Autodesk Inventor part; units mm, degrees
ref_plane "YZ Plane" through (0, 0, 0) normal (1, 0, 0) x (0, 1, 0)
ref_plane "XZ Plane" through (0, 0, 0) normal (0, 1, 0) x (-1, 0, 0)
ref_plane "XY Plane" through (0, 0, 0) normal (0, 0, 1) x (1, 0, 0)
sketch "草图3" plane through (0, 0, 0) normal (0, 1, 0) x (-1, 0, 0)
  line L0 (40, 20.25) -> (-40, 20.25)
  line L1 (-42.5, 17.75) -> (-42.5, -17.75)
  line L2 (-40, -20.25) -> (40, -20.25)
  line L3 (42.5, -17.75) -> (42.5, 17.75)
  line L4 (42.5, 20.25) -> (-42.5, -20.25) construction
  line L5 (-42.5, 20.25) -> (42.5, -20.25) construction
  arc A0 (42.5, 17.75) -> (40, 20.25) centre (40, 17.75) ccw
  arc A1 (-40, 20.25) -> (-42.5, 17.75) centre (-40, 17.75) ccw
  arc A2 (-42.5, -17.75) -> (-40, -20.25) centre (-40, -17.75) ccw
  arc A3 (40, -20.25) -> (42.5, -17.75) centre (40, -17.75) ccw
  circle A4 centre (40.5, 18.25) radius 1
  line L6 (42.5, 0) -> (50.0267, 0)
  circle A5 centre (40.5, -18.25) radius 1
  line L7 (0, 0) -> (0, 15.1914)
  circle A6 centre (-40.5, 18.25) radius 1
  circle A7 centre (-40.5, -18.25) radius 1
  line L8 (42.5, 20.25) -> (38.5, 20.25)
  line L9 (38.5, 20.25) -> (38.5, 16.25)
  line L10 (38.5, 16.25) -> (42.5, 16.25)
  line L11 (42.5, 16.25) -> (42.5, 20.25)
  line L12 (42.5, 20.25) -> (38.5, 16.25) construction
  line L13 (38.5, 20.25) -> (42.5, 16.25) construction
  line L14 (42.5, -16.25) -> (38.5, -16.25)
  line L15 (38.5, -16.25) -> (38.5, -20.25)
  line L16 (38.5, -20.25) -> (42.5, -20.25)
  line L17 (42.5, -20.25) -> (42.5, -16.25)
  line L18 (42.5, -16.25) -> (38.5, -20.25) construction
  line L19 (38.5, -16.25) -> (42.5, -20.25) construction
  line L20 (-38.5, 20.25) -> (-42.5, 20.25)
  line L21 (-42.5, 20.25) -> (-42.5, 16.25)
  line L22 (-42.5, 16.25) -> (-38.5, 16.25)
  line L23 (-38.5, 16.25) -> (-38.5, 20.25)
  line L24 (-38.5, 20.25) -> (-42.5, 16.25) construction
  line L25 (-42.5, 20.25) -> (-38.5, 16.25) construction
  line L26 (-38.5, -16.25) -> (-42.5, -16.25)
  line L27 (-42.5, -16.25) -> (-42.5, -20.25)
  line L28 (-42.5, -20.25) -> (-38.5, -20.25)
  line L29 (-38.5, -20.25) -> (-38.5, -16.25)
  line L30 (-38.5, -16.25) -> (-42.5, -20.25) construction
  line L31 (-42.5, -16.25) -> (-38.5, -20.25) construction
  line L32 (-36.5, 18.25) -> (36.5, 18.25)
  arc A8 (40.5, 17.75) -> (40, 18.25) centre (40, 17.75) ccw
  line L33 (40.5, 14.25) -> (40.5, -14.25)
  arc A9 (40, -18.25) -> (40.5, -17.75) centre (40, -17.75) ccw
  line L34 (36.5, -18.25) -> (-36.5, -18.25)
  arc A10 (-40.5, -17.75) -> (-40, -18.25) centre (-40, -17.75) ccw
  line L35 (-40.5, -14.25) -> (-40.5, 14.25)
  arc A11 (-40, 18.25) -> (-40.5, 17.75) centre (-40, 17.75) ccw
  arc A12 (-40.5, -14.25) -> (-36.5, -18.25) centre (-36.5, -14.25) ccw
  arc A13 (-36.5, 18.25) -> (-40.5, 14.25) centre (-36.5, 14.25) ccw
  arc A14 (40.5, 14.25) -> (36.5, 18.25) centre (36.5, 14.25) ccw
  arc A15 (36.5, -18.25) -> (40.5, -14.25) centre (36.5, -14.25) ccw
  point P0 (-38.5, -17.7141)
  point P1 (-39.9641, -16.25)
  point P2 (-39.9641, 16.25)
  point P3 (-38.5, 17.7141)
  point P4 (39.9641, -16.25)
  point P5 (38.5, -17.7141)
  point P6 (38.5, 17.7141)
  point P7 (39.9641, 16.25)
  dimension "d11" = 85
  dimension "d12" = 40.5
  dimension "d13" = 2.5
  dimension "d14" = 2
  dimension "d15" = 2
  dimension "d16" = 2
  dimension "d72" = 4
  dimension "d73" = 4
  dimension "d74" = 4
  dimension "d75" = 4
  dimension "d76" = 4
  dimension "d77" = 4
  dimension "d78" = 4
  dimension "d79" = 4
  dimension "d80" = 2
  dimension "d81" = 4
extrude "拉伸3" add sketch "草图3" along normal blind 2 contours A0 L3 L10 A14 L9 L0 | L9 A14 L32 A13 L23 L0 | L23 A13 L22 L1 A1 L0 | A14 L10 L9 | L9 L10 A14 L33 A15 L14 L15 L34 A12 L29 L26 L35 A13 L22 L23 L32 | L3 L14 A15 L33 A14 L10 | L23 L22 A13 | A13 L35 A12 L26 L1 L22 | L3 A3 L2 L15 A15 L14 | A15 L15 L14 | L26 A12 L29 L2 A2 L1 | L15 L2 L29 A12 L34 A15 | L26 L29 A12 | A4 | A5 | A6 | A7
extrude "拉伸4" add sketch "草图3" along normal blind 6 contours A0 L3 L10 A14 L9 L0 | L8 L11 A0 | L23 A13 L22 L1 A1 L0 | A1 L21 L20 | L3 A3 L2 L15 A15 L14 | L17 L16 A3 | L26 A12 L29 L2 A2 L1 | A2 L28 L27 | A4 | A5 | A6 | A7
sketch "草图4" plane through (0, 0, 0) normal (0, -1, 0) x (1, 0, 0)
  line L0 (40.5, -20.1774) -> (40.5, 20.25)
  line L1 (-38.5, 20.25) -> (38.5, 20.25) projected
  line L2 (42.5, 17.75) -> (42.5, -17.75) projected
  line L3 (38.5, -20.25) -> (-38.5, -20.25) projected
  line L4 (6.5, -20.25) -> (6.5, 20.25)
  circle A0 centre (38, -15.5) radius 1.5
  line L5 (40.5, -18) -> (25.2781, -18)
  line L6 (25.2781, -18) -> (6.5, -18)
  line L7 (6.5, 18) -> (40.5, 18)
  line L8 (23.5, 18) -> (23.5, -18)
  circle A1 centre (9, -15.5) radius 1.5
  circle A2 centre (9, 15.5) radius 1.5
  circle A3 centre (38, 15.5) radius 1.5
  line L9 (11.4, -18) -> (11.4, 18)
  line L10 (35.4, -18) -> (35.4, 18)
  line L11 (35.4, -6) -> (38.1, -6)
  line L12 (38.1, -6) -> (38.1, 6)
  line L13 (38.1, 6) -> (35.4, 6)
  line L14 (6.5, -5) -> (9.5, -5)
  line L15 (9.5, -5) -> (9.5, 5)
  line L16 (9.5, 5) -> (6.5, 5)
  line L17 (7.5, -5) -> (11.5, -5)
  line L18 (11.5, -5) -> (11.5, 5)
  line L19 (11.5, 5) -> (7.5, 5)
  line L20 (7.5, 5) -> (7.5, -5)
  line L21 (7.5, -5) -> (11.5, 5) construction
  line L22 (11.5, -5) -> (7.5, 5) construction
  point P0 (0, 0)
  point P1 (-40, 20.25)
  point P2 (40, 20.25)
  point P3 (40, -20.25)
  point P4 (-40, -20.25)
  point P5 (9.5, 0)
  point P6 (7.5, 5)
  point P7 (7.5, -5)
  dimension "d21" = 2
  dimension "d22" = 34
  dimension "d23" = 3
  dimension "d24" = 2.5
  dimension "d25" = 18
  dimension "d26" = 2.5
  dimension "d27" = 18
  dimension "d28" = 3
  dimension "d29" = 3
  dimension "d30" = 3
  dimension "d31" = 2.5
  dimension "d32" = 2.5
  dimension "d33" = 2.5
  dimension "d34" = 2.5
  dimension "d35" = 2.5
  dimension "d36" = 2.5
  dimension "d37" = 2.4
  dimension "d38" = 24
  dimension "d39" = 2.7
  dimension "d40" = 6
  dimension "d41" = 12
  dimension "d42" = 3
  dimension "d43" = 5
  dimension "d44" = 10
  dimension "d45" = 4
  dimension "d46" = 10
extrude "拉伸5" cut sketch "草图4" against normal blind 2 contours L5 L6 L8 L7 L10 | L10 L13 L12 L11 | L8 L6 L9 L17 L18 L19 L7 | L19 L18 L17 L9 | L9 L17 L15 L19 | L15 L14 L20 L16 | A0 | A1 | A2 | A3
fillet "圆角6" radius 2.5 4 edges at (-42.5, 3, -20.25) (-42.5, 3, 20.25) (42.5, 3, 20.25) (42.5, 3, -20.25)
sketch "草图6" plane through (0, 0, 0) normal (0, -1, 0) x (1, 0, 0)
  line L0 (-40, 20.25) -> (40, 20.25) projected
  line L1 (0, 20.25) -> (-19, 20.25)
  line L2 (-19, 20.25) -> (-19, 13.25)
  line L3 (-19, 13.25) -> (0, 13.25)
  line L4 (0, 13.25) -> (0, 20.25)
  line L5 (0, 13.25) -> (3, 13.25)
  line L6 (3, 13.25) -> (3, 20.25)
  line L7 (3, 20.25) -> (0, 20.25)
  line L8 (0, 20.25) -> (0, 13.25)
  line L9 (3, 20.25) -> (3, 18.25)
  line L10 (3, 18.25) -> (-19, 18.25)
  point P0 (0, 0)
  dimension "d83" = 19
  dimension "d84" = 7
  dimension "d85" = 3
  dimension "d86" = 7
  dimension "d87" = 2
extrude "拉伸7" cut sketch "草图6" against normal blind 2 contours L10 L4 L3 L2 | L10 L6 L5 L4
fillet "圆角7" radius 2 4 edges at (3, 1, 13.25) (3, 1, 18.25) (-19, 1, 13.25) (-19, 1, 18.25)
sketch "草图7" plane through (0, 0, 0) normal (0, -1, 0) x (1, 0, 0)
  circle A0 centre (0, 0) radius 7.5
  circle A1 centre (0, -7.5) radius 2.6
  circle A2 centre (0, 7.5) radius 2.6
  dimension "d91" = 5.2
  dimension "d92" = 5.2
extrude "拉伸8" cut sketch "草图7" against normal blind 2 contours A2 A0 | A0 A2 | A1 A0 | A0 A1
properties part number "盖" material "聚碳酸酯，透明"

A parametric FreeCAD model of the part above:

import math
import FreeCAD as App
import Part
import Sketcher
Q = App.Units.Quantity


def edges_at(feature, points):
    """Names of the edges that pass closest to the given points."""
    edges = feature.Shape.Edges
    near = lambda p: min(range(len(edges)), key=lambda i: edges[i].distToShape(Part.Vertex(*p))[0])
    return sorted({f"Edge{near(p) + 1}" for p in points})


def add_polygon(sketch, points):
    """Adds a closed chain of lines whose ends are joined by coincident constraints."""
    first, n = sketch.GeometryCount, len(points)
    for a, b in zip(points, points[1:] + points[:1]):
        sketch.addGeometry(Part.LineSegment(App.Vector(*a, 0), App.Vector(*b, 0)), False)
    for i in range(n):
        sketch.addConstraint(Sketcher.Constraint("Coincident", first + i, 2, first + (i + 1) % n, 1))

doc = App.newDocument("Part")
body = doc.addObject("PartDesign::Body", "Body")

sketch1 = body.newObject("Sketcher::SketchObject", "Sketch")
sketch1.AttachmentSupport = (doc.getObject("XZ_Plane"), [""])
sketch1.MapMode = "FlatFace"
sketch1.addGeometry([
    Part.ArcOfCircle(Part.Circle(App.Vector(-40, 17.8, 0), App.Vector(0, 0, 1), 2.5), math.radians(90), math.radians(180)),
    Part.LineSegment(App.Vector(-40, 20.2, 0), App.Vector(40, 20.2, 0)),
    Part.ArcOfCircle(Part.Circle(App.Vector(40, 17.8, 0), App.Vector(0, 0, 1), 2.5), math.radians(0), math.radians(90)),
    Part.LineSegment(App.Vector(42.5, 17.8, 0), App.Vector(42.5, -17.8, 0)),
    Part.ArcOfCircle(Part.Circle(App.Vector(40, -17.8, 0), App.Vector(0, 0, 1), 2.5), math.radians(-90), math.radians(0)),
    Part.LineSegment(App.Vector(40, -20.2, 0), App.Vector(-40, -20.2, 0)),
    Part.ArcOfCircle(Part.Circle(App.Vector(-40, -17.8, 0), App.Vector(0, 0, 1), 2.5), math.radians(180), math.radians(270)),
    Part.LineSegment(App.Vector(-42.5, -17.8, 0), App.Vector(-42.5, 17.8, 0)),
], False)
sketch1.addConstraint([
    Sketcher.Constraint("Tangent", 0, 1, 1, 1),
    Sketcher.Constraint("Tangent", 1, 2, 2, 2),
    Sketcher.Constraint("Tangent", 2, 1, 3, 1),
    Sketcher.Constraint("Tangent", 3, 2, 4, 2),
    Sketcher.Constraint("Tangent", 4, 1, 5, 1),
    Sketcher.Constraint("Tangent", 5, 2, 6, 2),
    Sketcher.Constraint("Tangent", 6, 1, 7, 1),
    Sketcher.Constraint("Tangent", 7, 2, 0, 2),
    Sketcher.Constraint("Horizontal", 1),
    Sketcher.Constraint("Vertical", 3),
    Sketcher.Constraint("Horizontal", 5),
    Sketcher.Constraint("Vertical", 7),
    Sketcher.Constraint("Equal", 0, 2),
    Sketcher.Constraint("Equal", 2, 4),
    Sketcher.Constraint("Equal", 4, 6),
    Sketcher.Constraint("Symmetric", 0, 3, 4, 3, -1, 1),
    Sketcher.Constraint("Radius", 0, Q("2.5 mm")),
    Sketcher.Constraint("DistanceY", 4, 1, 1, 2, Q("40.5 mm")),
    Sketcher.Constraint("DistanceX", 1, 1, 1, 2, Q("80 mm")),
])
pad1 = body.newObject("PartDesign::Pad", "Pad")
pad1.Profile = sketch1
pad1.Length = 2
pad1.Reversed = True

sketch2 = body.newObject("Sketcher::SketchObject", "Sketch001")
sketch2.AttachmentSupport = (doc.getObject("XZ_Plane"), [""])
sketch2.MapMode = "FlatFace"
sketch2.addGeometry([
    Part.LineSegment(App.Vector(-42.5, 16.2, 0), App.Vector(-42.5, 20.2, 0)),
    Part.LineSegment(App.Vector(-42.5, 20.2, 0), App.Vector(-38.5, 20.2, 0)),
    Part.LineSegment(App.Vector(-38.5, 20.2, 0), App.Vector(-38.5, 17.7, 0)),
    Part.ArcOfCircle(Part.Circle(App.Vector(-36.5, 14.2, 0), App.Vector(0, 0, 1), 4), math.radians(120), math.radians(150)),
    Part.LineSegment(App.Vector(-40, 16.2, 0), App.Vector(-42.5, 16.2, 0)),
    Part.LineSegment(App.Vector(38.5, 17.7, 0), App.Vector(38.5, 20.2, 0)),
    Part.LineSegment(App.Vector(38.5, 20.2, 0), App.Vector(42.5, 20.2, 0)),
    Part.LineSegment(App.Vector(42.5, 20.2, 0), App.Vector(42.5, 16.2, 0)),
    Part.LineSegment(App.Vector(42.5, 16.2, 0), App.Vector(40, 16.2, 0)),
    Part.ArcOfCircle(Part.Circle(App.Vector(36.5, 14.2, 0), App.Vector(0, 0, 1), 4), math.radians(30), math.radians(60)),
    Part.LineSegment(App.Vector(-42.5, -16.2, 0), App.Vector(-40, -16.2, 0)),
    Part.ArcOfCircle(Part.Circle(App.Vector(-36.5, -14.2, 0), App.Vector(0, 0, 1), 4), math.radians(-150), math.radians(-120)),
    Part.LineSegment(App.Vector(-38.5, -17.7, 0), App.Vector(-38.5, -20.2, 0)),
    Part.LineSegment(App.Vector(-38.5, -20.2, 0), App.Vector(-42.5, -20.2, 0)),
    Part.LineSegment(App.Vector(-42.5, -20.2, 0), App.Vector(-42.5, -16.2, 0)),
    Part.LineSegment(App.Vector(40, -16.2, 0), App.Vector(42.5, -16.2, 0)),
    Part.LineSegment(App.Vector(42.5, -16.2, 0), App.Vector(42.5, -20.2, 0)),
    Part.LineSegment(App.Vector(42.5, -20.2, 0), App.Vector(38.5, -20.2, 0)),
    Part.LineSegment(App.Vector(38.5, -20.2, 0), App.Vector(38.5, -17.7, 0)),
    Part.ArcOfCircle(Part.Circle(App.Vector(36.5, -14.2, 0), App.Vector(0, 0, 1), 4), math.radians(-60), math.radians(-30)),
], False)
sketch2.addConstraint([
    Sketcher.Constraint("Coincident", 0, 2, 1, 1),
    Sketcher.Constraint("Coincident", 1, 2, 2, 1),
    Sketcher.Constraint("Coincident", 2, 2, 3, 1),
    Sketcher.Constraint("Coincident", 3, 2, 4, 1),
    Sketcher.Constraint("Coincident", 4, 2, 0, 1),
    Sketcher.Constraint("Coincident", 5, 2, 6, 1),
    Sketcher.Constraint("Coincident", 6, 2, 7, 1),
    Sketcher.Constraint("Coincident", 7, 2, 8, 1),
    Sketcher.Constraint("Coincident", 8, 2, 9, 1),
    Sketcher.Constraint("Coincident", 9, 2, 5, 1),
    Sketcher.Constraint("Coincident", 10, 2, 11, 1),
    Sketcher.Constraint("Coincident", 11, 2, 12, 1),
    Sketcher.Constraint("Coincident", 12, 2, 13, 1),
    Sketcher.Constraint("Coincident", 13, 2, 14, 1),
    Sketcher.Constraint("Coincident", 14, 2, 10, 1),
    Sketcher.Constraint("Coincident", 15, 2, 16, 1),
    Sketcher.Constraint("Coincident", 16, 2, 17, 1),
    Sketcher.Constraint("Coincident", 17, 2, 18, 1),
    Sketcher.Constraint("Coincident", 18, 2, 19, 1),
    Sketcher.Constraint("Coincident", 19, 2, 15, 1),
    Sketcher.Constraint("Vertical", 0),
    Sketcher.Constraint("Horizontal", 1),
    Sketcher.Constraint("Vertical", 2),
    Sketcher.Constraint("Horizontal", 4),
    Sketcher.Constraint("Vertical", 5),
    Sketcher.Constraint("Horizontal", 6),
    Sketcher.Constraint("Vertical", 7),
    Sketcher.Constraint("Horizontal", 8),
    Sketcher.Constraint("Horizontal", 10),
    Sketcher.Constraint("Vertical", 12),
    Sketcher.Constraint("Horizontal", 13),
    Sketcher.Constraint("Vertical", 14),
    Sketcher.Constraint("Horizontal", 15),
    Sketcher.Constraint("Vertical", 16),
    Sketcher.Constraint("Horizontal", 17),
    Sketcher.Constraint("Vertical", 18),
    Sketcher.Constraint("Equal", 3, 9),
    Sketcher.Constraint("Equal", 9, 11),
    Sketcher.Constraint("Equal", 11, 19),
    Sketcher.Constraint("Symmetric", 9, 3, 11, 3, -1, 1),
    Sketcher.Constraint("Symmetric", 3, 3, 19, 3, -1, 1),
    Sketcher.Constraint("Symmetric", 5, 2, 12, 2, -1, 1),
    Sketcher.Constraint("Symmetric", 7, 2, 14, 2, -1, 1),
    Sketcher.Constraint("Symmetric", 4, 2, 15, 2, -1, 1),
    Sketcher.Constraint("Symmetric", 1, 2, 17, 2, -1, 1),
    Sketcher.Constraint("Symmetric", 3, 3, 9, 3, -2),
    Sketcher.Constraint("Symmetric", 1, 2, 5, 2, -2),
    Sketcher.Constraint("Symmetric", 4, 2, 7, 2, -2),
    Sketcher.Constraint("Equal", 17, 0),
    Sketcher.Constraint("Equal", 15, 2),
    Sketcher.Constraint("Radius", 3, Q("4 mm")),
    Sketcher.Constraint("DistanceX", 1, 1, 1, 2, Q("4 mm")),
    Sketcher.Constraint("DistanceX", 1, 2, 3, 3, Q("2 mm")),
    Sketcher.Constraint("DistanceX", 3, 3, 9, 3, Q("73 mm")),
    Sketcher.Constraint("DistanceY", 11, 3, 3, 3, Q("28.5 mm")),
])
pad2 = body.newObject("PartDesign::Pad", "Pad001")
pad2.Profile = sketch2
pad2.Length = 6
pad2.Reversed = True

sketch3 = body.newObject("Sketcher::SketchObject", "Sketch002")
sketch3.AttachmentSupport = (doc.getObject("XZ_Plane"), [""])
sketch3.MapMode = "FlatFace"
add_polygon(sketch3, [(35.4, -18), (35.4, -6), (38.1, -6), (38.1, 6), (35.4, 6), (35.4, 18), (11.4, 18), (11.4, 5), (7.5, 5), (7.5, -5), (11.4, -5), (11.4, -18)])
sketch3.addGeometry(Part.Circle(App.Vector(38, -15.5, 0), App.Vector(0, 0, 1), 1.5), False)
sketch3.addGeometry(Part.Circle(App.Vector(9, -15.5, 0), App.Vector(0, 0, 1), 1.5), False)
sketch3.addGeometry(Part.Circle(App.Vector(9, 15.5, 0), App.Vector(0, 0, 1), 1.5), False)
sketch3.addGeometry(Part.Circle(App.Vector(38, 15.5, 0), App.Vector(0, 0, 1), 1.5), False)
sketch3.addConstraint([
    Sketcher.Constraint("Vertical", 0),
    Sketcher.Constraint("Horizontal", 1),
    Sketcher.Constraint("Vertical", 2),
    Sketcher.Constraint("Horizontal", 3),
    Sketcher.Constraint("Vertical", 4),
    Sketcher.Constraint("Horizontal", 5),
    Sketcher.Constraint("Vertical", 6),
    Sketcher.Constraint("Horizontal", 7),
    Sketcher.Constraint("Vertical", 8),
    Sketcher.Constraint("Horizontal", 9),
    Sketcher.Constraint("Vertical", 10),
    Sketcher.Constraint("Horizontal", 11),
    Sketcher.Constraint("Equal", 12, 13),
    Sketcher.Constraint("Equal", 13, 14),
    Sketcher.Constraint("Equal", 14, 15),
    Sketcher.Constraint("Symmetric", 13, 3, 14, 3, -1),
    Sketcher.Constraint("Symmetric", 12, 3, 15, 3, -1),
    Sketcher.Constraint("Symmetric", 0, 2, 3, 2, -1),
    Sketcher.Constraint("Symmetric", 6, 2, 9, 2, -1),
    Sketcher.Constraint("Horizontal", 12, 3, 13, 3),
    Sketcher.Constraint("Equal", 0, 2),
    Sketcher.Constraint("Equal", 2, 4),
    Sketcher.Constraint("Diameter", 12, Q("3 mm")),
    Sketcher.Constraint("DistanceX", 5, 2, 5, 1, Q("24 mm")),
    Sketcher.Constraint("DistanceY", 0, 1, 0, 2, Q("12 mm")),
    Sketcher.Constraint("DistanceY", 8, 2, 8, 1, Q("10 mm")),
    Sketcher.Constraint("DistanceX", 1, 1, 1, 2, Q("2.7 mm")),
    Sketcher.Constraint("DistanceY", 15, 3, 4, 2, Q("2.5 mm")),
    Sketcher.Constraint("DistanceX", 14, 3, 5, 2, Q("2.4 mm")),
    Sketcher.Constraint("DistanceX", 7, 2, 7, 1, Q("3.9 mm")),
    Sketcher.Constraint("DistanceX", -1, 1, 12, 3, Q("38 mm")),
    Sketcher.Constraint("DistanceX", -1, 1, 13, 3, Q("9 mm")),
])
pocket1 = body.newObject("PartDesign::Pocket", "Pocket")
pocket1.Profile = sketch3
pocket1.Length = 2
doc.recompute()

fillet = body.newObject("PartDesign::Fillet", "Fillet")
fillet.Base = (pocket1, edges_at(pocket1, [
    (-42.5, 3, -20.25),
    (-42.5, 3, 20.25),
    (42.5, 3, 20.25),
    (42.5, 3, -20.25),
]))
fillet.Radius = 2.5

sketch4 = body.newObject("Sketcher::SketchObject", "Sketch003")
sketch4.AttachmentSupport = (doc.getObject("XZ_Plane"), [""])
sketch4.MapMode = "FlatFace"
add_polygon(sketch4, [(-19, 18), (-19, 13), (3, 13), (3, 18)])
sketch4.addConstraint([
    Sketcher.Constraint("Vertical", 0),
    Sketcher.Constraint("Horizontal", 1),
    Sketcher.Constraint("Vertical", 2),
    Sketcher.Constraint("Horizontal", 3),
    Sketcher.Constraint("DistanceX", 0, 2, -1, 1, Q("19 mm")),
    Sketcher.Constraint("DistanceX", -1, 1, 1, 2, Q("3 mm")),
    Sketcher.Constraint("DistanceY", 0, 2, 0, 1, Q("5 mm")),
    Sketcher.Constraint("DistanceY", -1, 1, 0, 2, Q("13.25 mm")),
])
pocket2 = body.newObject("PartDesign::Pocket", "Pocket001")
pocket2.Profile = sketch4
pocket2.Length = 2
doc.recompute()

fillet2 = body.newObject("PartDesign::Fillet", "Fillet001")
fillet2.Base = (pocket2, edges_at(pocket2, [
    (3, 1, 13.25),
    (3, 1, 18.25),
    (-19, 1, 13.25),
    (-19, 1, 18.25),
]))
fillet2.Radius = 2

sketch5 = body.newObject("Sketcher::SketchObject", "Sketch004")
sketch5.AttachmentSupport = (doc.getObject("XZ_Plane"), [""])
sketch5.MapMode = "FlatFace"
sketch5.addGeometry([
    Part.Circle(App.Vector(0, 7.5, 0), App.Vector(0, 0, 1), 2.6),
    Part.Circle(App.Vector(0, -7.5, 0), App.Vector(0, 0, 1), 2.6),
], False)
sketch5.addConstraint([
    Sketcher.Constraint("Equal", 0, 1),
    Sketcher.Constraint("Symmetric", 0, 3, 1, 3, -1, 1),
    Sketcher.Constraint("PointOnObject", 0, 3, -2),
    Sketcher.Constraint("Diameter", 0, Q("5.2 mm")),
    Sketcher.Constraint("DistanceY", 1, 3, 0, 3, Q("15 mm")),
])
pocket3 = body.newObject("PartDesign::Pocket", "Pocket002")
pocket3.Profile = sketch5
pocket3.Length = 2

doc.recompute()
